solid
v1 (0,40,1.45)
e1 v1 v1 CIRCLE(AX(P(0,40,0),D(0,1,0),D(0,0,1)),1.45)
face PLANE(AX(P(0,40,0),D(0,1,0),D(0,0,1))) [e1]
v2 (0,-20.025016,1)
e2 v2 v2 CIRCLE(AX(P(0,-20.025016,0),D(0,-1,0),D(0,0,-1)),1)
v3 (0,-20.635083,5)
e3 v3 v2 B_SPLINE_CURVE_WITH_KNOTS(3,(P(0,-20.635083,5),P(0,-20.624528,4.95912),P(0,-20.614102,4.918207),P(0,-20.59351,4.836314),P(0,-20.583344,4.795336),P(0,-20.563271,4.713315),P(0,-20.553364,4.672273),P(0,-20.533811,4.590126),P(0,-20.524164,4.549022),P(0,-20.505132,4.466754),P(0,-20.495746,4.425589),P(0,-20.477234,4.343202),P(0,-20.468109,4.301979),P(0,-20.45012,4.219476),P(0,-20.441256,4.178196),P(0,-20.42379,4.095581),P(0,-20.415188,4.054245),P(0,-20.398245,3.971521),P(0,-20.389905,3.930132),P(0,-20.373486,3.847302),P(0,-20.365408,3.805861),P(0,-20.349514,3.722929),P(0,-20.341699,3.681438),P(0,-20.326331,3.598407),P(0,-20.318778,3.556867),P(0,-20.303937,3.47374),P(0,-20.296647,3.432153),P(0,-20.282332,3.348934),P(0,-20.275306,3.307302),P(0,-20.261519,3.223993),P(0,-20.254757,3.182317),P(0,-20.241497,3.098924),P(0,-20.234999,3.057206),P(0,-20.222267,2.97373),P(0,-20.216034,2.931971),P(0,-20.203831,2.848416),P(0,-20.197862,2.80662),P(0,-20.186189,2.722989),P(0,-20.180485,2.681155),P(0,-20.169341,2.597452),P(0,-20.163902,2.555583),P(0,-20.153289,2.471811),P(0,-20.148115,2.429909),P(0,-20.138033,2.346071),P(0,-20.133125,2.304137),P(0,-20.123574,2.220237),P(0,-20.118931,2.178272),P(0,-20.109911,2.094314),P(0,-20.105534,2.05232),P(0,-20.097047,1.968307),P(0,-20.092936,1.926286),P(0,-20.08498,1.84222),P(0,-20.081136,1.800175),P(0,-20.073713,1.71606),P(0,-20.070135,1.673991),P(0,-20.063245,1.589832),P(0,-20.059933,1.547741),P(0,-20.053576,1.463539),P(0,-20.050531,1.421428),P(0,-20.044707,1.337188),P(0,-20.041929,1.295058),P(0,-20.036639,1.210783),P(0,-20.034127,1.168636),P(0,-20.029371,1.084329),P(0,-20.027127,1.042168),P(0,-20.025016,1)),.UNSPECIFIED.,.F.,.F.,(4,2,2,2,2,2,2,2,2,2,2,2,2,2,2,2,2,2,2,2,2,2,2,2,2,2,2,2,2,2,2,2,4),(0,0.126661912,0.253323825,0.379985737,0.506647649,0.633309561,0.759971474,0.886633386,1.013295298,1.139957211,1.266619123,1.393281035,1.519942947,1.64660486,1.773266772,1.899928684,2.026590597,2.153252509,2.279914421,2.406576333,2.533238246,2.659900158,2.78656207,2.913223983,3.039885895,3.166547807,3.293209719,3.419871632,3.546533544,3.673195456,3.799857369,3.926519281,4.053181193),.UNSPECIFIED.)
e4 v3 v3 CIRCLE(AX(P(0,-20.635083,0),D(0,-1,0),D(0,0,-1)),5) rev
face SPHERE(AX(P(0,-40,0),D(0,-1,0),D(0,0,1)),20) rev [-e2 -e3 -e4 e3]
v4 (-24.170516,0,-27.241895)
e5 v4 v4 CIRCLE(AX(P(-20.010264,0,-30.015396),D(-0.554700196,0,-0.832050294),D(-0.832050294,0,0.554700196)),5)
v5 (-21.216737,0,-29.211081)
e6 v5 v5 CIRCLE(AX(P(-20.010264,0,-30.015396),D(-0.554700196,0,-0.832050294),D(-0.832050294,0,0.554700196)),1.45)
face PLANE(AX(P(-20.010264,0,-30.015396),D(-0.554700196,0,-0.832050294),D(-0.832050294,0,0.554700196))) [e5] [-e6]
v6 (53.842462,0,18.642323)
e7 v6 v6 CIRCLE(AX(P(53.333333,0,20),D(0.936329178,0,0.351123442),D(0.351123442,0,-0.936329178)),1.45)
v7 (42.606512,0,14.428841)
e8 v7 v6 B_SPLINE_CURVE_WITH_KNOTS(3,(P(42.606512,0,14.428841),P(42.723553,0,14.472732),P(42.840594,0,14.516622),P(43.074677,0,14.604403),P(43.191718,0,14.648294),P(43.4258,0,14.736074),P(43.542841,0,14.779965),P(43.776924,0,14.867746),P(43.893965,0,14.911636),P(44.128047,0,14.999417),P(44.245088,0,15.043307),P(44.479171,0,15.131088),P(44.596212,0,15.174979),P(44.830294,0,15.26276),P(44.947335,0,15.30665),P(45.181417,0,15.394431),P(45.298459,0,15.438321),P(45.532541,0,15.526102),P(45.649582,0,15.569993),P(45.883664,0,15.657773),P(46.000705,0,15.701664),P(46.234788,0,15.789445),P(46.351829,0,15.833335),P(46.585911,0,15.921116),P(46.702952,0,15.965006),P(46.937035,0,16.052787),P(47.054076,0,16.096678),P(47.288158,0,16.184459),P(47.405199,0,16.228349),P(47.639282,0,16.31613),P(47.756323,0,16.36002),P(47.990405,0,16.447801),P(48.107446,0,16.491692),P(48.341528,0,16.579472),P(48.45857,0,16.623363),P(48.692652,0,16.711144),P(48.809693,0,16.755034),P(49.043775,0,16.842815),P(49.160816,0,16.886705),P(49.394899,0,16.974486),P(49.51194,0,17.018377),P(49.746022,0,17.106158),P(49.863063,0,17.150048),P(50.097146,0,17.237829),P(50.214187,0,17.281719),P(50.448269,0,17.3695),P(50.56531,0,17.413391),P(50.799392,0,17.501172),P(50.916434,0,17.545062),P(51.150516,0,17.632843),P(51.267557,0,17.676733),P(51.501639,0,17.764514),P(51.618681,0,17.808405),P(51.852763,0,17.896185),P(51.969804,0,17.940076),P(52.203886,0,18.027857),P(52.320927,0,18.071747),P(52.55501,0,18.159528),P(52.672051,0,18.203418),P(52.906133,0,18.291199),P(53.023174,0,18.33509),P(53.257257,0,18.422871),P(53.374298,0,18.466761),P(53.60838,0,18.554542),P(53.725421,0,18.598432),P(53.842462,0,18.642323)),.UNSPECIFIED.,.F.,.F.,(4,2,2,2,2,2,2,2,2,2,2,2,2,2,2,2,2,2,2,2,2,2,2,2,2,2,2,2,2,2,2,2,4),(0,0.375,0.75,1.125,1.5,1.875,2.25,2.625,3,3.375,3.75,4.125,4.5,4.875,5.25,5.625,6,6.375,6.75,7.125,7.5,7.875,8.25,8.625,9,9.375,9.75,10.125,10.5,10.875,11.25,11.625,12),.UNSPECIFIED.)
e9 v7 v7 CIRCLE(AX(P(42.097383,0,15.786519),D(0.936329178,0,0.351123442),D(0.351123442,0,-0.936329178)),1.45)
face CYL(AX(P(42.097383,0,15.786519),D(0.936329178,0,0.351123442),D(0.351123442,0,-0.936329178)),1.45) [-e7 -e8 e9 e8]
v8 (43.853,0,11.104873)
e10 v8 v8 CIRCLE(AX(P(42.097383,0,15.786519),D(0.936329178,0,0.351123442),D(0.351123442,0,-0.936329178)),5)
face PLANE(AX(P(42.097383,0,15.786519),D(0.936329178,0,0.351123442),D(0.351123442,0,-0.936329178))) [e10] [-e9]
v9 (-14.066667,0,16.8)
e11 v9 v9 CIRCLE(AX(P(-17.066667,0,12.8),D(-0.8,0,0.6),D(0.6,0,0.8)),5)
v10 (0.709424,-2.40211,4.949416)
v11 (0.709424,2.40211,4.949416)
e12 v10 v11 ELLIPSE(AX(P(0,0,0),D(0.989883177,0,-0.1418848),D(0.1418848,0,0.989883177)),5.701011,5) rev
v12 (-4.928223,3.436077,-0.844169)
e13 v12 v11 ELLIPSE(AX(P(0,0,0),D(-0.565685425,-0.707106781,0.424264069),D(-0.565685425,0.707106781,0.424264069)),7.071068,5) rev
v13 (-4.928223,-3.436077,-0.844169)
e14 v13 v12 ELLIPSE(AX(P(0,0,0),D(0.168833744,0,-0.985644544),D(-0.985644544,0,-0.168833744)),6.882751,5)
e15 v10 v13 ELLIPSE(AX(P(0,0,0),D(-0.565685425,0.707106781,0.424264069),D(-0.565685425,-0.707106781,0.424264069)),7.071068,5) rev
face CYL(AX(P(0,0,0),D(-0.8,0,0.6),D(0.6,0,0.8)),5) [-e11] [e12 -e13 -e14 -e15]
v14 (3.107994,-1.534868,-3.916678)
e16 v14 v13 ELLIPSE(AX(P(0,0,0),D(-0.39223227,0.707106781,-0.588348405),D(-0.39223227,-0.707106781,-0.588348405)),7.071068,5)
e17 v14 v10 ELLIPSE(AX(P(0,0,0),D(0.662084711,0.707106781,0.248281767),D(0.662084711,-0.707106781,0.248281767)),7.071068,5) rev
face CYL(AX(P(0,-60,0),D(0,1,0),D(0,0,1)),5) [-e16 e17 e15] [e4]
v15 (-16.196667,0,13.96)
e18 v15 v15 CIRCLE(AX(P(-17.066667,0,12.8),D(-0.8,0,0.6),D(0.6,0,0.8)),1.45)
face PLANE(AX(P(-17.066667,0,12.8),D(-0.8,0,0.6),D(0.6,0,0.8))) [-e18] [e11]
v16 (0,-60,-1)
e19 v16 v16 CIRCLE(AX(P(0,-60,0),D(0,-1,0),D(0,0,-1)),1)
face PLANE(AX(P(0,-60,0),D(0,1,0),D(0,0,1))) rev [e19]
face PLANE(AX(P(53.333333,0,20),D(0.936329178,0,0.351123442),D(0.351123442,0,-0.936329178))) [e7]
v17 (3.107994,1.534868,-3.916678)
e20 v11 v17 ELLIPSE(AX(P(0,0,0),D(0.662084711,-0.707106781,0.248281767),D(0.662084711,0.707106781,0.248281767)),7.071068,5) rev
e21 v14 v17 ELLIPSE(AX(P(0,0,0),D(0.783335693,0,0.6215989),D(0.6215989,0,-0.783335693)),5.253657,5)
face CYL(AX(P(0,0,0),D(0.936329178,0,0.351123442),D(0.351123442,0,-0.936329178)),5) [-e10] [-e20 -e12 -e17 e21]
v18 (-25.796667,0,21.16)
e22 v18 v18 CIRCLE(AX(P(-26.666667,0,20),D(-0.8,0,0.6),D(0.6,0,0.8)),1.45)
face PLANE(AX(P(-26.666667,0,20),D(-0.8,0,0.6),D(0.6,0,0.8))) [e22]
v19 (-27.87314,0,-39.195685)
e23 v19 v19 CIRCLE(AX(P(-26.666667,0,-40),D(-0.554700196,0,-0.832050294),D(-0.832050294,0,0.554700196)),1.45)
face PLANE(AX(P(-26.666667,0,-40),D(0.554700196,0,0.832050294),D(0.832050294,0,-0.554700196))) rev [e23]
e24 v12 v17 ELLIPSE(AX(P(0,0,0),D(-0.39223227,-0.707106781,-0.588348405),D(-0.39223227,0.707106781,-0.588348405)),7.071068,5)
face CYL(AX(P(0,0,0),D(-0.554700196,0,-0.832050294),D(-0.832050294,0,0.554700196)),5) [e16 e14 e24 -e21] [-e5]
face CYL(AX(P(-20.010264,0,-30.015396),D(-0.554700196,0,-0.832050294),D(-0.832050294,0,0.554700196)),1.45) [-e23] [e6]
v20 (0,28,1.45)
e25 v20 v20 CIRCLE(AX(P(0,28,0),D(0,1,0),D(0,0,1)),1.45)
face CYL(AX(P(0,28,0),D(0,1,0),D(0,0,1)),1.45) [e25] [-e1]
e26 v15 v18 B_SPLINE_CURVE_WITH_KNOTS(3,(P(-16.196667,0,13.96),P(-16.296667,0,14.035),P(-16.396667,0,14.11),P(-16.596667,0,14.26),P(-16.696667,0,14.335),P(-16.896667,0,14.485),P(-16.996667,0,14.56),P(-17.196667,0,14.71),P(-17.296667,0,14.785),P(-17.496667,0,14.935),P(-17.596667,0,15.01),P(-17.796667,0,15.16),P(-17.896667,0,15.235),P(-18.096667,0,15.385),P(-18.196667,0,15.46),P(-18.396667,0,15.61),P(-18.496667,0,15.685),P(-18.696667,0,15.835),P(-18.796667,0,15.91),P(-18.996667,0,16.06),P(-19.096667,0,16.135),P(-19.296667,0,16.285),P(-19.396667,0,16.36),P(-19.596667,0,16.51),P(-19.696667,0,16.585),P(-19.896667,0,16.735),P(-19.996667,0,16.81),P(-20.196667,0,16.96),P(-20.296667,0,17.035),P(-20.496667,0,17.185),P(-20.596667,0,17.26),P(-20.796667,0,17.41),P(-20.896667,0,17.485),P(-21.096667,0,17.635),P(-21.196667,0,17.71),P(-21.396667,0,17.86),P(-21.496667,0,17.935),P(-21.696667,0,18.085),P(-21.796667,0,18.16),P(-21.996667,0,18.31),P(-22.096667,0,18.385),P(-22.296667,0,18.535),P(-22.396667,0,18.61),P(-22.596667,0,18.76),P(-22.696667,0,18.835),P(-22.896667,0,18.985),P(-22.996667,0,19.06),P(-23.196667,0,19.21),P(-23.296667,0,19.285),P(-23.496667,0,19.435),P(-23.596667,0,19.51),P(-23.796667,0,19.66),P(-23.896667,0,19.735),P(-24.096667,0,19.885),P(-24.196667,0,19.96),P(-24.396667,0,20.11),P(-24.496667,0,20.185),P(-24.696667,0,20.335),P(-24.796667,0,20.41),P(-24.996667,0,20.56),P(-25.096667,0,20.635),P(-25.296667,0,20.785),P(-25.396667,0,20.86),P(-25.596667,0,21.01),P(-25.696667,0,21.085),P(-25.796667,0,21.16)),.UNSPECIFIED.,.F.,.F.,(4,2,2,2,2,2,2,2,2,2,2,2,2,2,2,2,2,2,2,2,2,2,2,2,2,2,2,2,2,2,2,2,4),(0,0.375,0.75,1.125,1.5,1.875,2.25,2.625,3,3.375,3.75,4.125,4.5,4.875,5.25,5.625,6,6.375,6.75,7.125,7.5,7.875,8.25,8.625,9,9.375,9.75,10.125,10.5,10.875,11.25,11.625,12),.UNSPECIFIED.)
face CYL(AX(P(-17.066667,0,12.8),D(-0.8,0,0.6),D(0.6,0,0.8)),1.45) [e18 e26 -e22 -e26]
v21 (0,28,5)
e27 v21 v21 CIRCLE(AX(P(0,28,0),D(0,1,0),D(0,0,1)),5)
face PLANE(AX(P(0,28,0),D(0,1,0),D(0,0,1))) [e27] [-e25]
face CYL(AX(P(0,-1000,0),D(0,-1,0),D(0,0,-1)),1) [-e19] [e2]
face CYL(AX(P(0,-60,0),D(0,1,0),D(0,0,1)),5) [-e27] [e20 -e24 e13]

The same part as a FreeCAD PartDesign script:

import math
import FreeCAD as App
import Part
import Sketcher
from FreeCAD import Vector
Q = App.Units.Quantity

doc = App.newDocument("Part")
body = doc.addObject("PartDesign::Body", "Body")

# Sketch on an angled plane
sketch1 = body.newObject("Sketcher::SketchObject", "Sketch")
sketch1.Placement = App.Placement(Vector(0, 0, 0), App.Rotation(Vector(0.351123442, 0, -0.936329178), Vector(0, 1.000000001, 0), Vector(0.936329178, 0, 0.351123442), "ZXY"))
sketch1.addGeometry(Part.Circle(Vector(0, 0, 0), Vector(0, 0, 1), 5), False)
sketch1.addConstraint([
    Sketcher.Constraint("Coincident", 0, 3, -1, 1),
    Sketcher.Constraint("Diameter", 0, Q("10 mm")),
])

# Sketch on an angled plane
sketch2 = body.newObject("Sketcher::SketchObject", "Sketch001")
sketch2.Placement = App.Placement(Vector(0, 0, 0), App.Rotation(Vector(0.936329178, 0, 0.351123442), Vector(0, 1.000000001, 0), Vector(-0.351123442, 0, 0.936329178), "ZXY"))
sketch2.addGeometry(Part.LineSegment(Vector(0, 0, 0), Vector(57, 0, 0)), False)
sketch2.addConstraint([
    Sketcher.Constraint("Horizontal", 0),
    Sketcher.Constraint("Coincident", 0, 1, -1, 1),
    Sketcher.Constraint("DistanceX", 0, 1, 0, 2, Q("56.960025 mm")),
])
doc.recompute()

additivepipe = body.newObject("PartDesign::AdditivePipe", "AdditivePipe")
additivepipe.Profile = sketch1
additivepipe.Spine = (sketch2, ["Edge1"])

# Sketch on an angled plane
sketch3 = body.newObject("Sketcher::SketchObject", "Sketch002")
sketch3.Placement = App.Placement(Vector(0, 0, 0), App.Rotation(Vector(0.832050294, 0, -0.554700196), Vector(0, 0.999999999, 0), Vector(0.554700196, 0, 0.832050294), "ZXY"))
sketch3.addGeometry(Part.Circle(Vector(0, 0, 0), Vector(0, 0, 1), 5), False)
sketch3.addConstraint([
    Sketcher.Constraint("Coincident", 0, 3, -1, 1),
    Sketcher.Constraint("Diameter", 0, Q("10 mm")),
])

# Sketch on an angled plane
sketch4 = body.newObject("Sketcher::SketchObject", "Sketch003")
sketch4.Placement = App.Placement(Vector(0, 0, 0), App.Rotation(Vector(-0.554700196, 0, -0.832050294), Vector(0, 0.999999999, 0), Vector(0.832050294, 0, -0.554700196), "ZXY"))
sketch4.addGeometry(Part.LineSegment(Vector(0, 0, 0), Vector(48, 0, 0)), False)
sketch4.addConstraint([
    Sketcher.Constraint("Horizontal", 0),
    Sketcher.Constraint("Coincident", 0, 1, -1, 1),
    Sketcher.Constraint("DistanceX", 0, 1, 0, 2, Q("48.074017 mm")),
])
doc.recompute()

additivepipe2 = body.newObject("PartDesign::AdditivePipe", "AdditivePipe001")
additivepipe2.Profile = sketch3
additivepipe2.Spine = (sketch4, ["Edge1"])

# Sketch on an angled plane
sketch5 = body.newObject("Sketcher::SketchObject", "Sketch004")
sketch5.Placement = App.Placement(Vector(0, 0, 0), App.Rotation(Vector(0.6, 0, 0.8), Vector(0, 1, 0), Vector(-0.8, 0, 0.6), "ZXY"))
sketch5.addGeometry(Part.Circle(Vector(0, 0, 0), Vector(0, 0, 1), 5), False)
sketch5.addConstraint([
    Sketcher.Constraint("Coincident", 0, 3, -1, 1),
    Sketcher.Constraint("Diameter", 0, Q("10 mm")),
])

# Sketch on an angled plane
sketch6 = body.newObject("Sketcher::SketchObject", "Sketch005")
sketch6.Placement = App.Placement(Vector(0, 0, 0), App.Rotation(Vector(-0.8, 0, 0.6), Vector(0, 1, 0), Vector(-0.6, 0, -0.8), "ZXY"))
sketch6.addGeometry(Part.LineSegment(Vector(0, 0, 0), Vector(33, 0, 0)), False)
sketch6.addConstraint([
    Sketcher.Constraint("Horizontal", 0),
    Sketcher.Constraint("Coincident", 0, 1, -1, 1),
    Sketcher.Constraint("DistanceX", 0, 1, 0, 2, Q("33.333333 mm")),
])
doc.recompute()

additivepipe3 = body.newObject("PartDesign::AdditivePipe", "AdditivePipe002")
additivepipe3.Profile = sketch5
additivepipe3.Spine = (sketch6, ["Edge1"])

# Sketch on an angled plane
sketch7 = body.newObject("Sketcher::SketchObject", "Sketch006")
sketch7.Placement = App.Placement(Vector(-26.666667, 0, -40), App.Rotation(Vector(-0.832050294, 0, 0.554700196), Vector(0, 0.999999999, 0), Vector(-0.554700196, 0, -0.832050294), "ZXY"))
sketch7.addGeometry([
    Part.Circle(Vector(0, 0, 0), Vector(0, 0, 1), 5),
    Part.Circle(Vector(0, 0, 0), Vector(0, 0, 1), 1.4),
], False)
sketch7.addConstraint([
    Sketcher.Constraint("Coincident", 0, 3, -1, 1),
    Sketcher.Constraint("Coincident", 1, 3, -1, 1),
    Sketcher.Constraint("Diameter", 0, Q("10 mm")),
    Sketcher.Constraint("Diameter", 1, Q("2.9 mm")),
])
pocket1 = body.newObject("PartDesign::Pocket", "Pocket")
pocket1.Profile = sketch7
pocket1.Length = 12

# Sketch on an angled plane
sketch8 = body.newObject("Sketcher::SketchObject", "Sketch007")
sketch8.Placement = App.Placement(Vector(-26.666667, 0, 20), App.Rotation(Vector(0.6, 0, 0.8), Vector(0, 1, 0), Vector(-0.8, 0, 0.6), "ZXY"))
sketch8.addGeometry([
    Part.Circle(Vector(0, 0, 0), Vector(0, 0, 1), 5),
    Part.Circle(Vector(0, 0, 0), Vector(0, 0, 1), 1.4),
], False)
sketch8.addConstraint([
    Sketcher.Constraint("Coincident", 0, 3, -1, 1),
    Sketcher.Constraint("Coincident", 1, 3, -1, 1),
    Sketcher.Constraint("Diameter", 0, Q("10 mm")),
    Sketcher.Constraint("Diameter", 1, Q("2.9 mm")),
])
pocket2 = body.newObject("PartDesign::Pocket", "Pocket001")
pocket2.Profile = sketch8
pocket2.Length = 12

# Sketch on an angled plane
sketch9 = body.newObject("Sketcher::SketchObject", "Sketch008")
sketch9.Placement = App.Placement(Vector(53.333333, 0, 20), App.Rotation(Vector(0.351123442, 0, -0.936329178), Vector(0, 1.000000001, 0), Vector(0.936329178, 0, 0.351123442), "ZXY"))
sketch9.addGeometry([
    Part.Circle(Vector(0, 0, 0), Vector(0, 0, 1), 5),
    Part.Circle(Vector(0, 0, 0), Vector(0, 0, 1), 1.4),
], False)
sketch9.addConstraint([
    Sketcher.Constraint("Coincident", 0, 3, -1, 1),
    Sketcher.Constraint("Coincident", 1, 3, -1, 1),
    Sketcher.Constraint("Diameter", 0, Q("10 mm")),
    Sketcher.Constraint("Diameter", 1, Q("2.9 mm")),
])
pocket3 = body.newObject("PartDesign::Pocket", "Pocket002")
pocket3.Profile = sketch9
pocket3.Length = 12

# Sketch on XZ plane
sketch10 = body.newObject("Sketcher::SketchObject", "Sketch009")
sketch10.AttachmentSupport = (doc.getObject("XZ_Plane"), [""])
sketch10.MapMode = "FlatFace"
sketch10.addGeometry(Part.Circle(Vector(0, 0, 0), Vector(0, 0, 1), 5), False)
sketch10.addConstraint([
    Sketcher.Constraint("Coincident", 0, 3, -1, 1),
    Sketcher.Constraint("Diameter", 0, Q("10 mm")),
])
pad1 = body.newObject("PartDesign::Pad", "Pad")
pad1.Profile = sketch10
pad1.Type = "TwoLengths"
pad1.Length = 40
pad1.Length2 = 60
pad1.Reversed = True

# Sketch on XZ plane
sketch11 = body.newObject("Sketcher::SketchObject", "Sketch010")
sketch11.AttachmentSupport = (doc.getObject("XZ_Plane"), [""])
sketch11.MapMode = "FlatFace"
sketch11.AttachmentOffset = App.Placement(Vector(0, 0, -40), App.Rotation())
sketch11.addGeometry([
    Part.Circle(Vector(0, 0, 0), Vector(0, 0, 1), 5),
    Part.Circle(Vector(0, 0, 0), Vector(0, 0, 1), 1.4),
], False)
sketch11.addConstraint([
    Sketcher.Constraint("Coincident", 0, 3, -1, 1),
    Sketcher.Constraint("Coincident", 1, 3, -1, 1),
    Sketcher.Constraint("Diameter", 0, Q("10 mm")),
    Sketcher.Constraint("Diameter", 1, Q("2.9 mm")),
])
pocket4 = body.newObject("PartDesign::Pocket", "Pocket003")
pocket4.Profile = sketch11
pocket4.Length = 12
pocket4.Reversed = True

# Sketch on YZ plane
sketch12 = body.newObject("Sketcher::SketchObject", "Sketch011")
sketch12.AttachmentSupport = (doc.getObject("YZ_Plane"), [""])
sketch12.MapMode = "FlatFace"
sketch12.addGeometry([
    Part.ArcOfCircle(Part.Circle(Vector(-40, 0, 0), Vector(0, 0, 1), 20), math.radians(3), math.radians(166)),
    Part.LineSegment(Vector(-59.4, 5, 0), Vector(-60, 5, 0)),
    Part.LineSegment(Vector(-60, 5, 0), Vector(-60, 1, 0)),
    Part.LineSegment(Vector(-60, 1, 0), Vector(-20, 1, 0)),
], False)
sketch12.addConstraint([
    Sketcher.Constraint("Coincident", 0, 2, 1, 1),
    Sketcher.Constraint("Coincident", 1, 2, 2, 1),
    Sketcher.Constraint("Coincident", 2, 2, 3, 1),
    Sketcher.Constraint("Coincident", 3, 2, 0, 1),
    Sketcher.Constraint("Horizontal", 1),
    Sketcher.Constraint("Vertical", 2),
    Sketcher.Constraint("Horizontal", 3),
    Sketcher.Constraint("PointOnObject", 0, 3, -1),
    Sketcher.Constraint("Radius", 0, Q("20 mm")),
    Sketcher.Constraint("DistanceY", 2, 2, 2, 1, Q("4 mm")),
    Sketcher.Constraint("DistanceX", 0, 3, -1, 1, Q("40 mm")),
    Sketcher.Constraint("DistanceY", -1, 1, 0, 2, Q("5 mm")),
    Sketcher.Constraint("DistanceX", 1, 2, -1, 1, Q("60 mm")),
])
groove = body.newObject("PartDesign::Groove", "Groove")
groove.Profile = sketch12
groove.ReferenceAxis = (sketch12, ["H_Axis"])
groove.Angle = 360

doc.recompute()
